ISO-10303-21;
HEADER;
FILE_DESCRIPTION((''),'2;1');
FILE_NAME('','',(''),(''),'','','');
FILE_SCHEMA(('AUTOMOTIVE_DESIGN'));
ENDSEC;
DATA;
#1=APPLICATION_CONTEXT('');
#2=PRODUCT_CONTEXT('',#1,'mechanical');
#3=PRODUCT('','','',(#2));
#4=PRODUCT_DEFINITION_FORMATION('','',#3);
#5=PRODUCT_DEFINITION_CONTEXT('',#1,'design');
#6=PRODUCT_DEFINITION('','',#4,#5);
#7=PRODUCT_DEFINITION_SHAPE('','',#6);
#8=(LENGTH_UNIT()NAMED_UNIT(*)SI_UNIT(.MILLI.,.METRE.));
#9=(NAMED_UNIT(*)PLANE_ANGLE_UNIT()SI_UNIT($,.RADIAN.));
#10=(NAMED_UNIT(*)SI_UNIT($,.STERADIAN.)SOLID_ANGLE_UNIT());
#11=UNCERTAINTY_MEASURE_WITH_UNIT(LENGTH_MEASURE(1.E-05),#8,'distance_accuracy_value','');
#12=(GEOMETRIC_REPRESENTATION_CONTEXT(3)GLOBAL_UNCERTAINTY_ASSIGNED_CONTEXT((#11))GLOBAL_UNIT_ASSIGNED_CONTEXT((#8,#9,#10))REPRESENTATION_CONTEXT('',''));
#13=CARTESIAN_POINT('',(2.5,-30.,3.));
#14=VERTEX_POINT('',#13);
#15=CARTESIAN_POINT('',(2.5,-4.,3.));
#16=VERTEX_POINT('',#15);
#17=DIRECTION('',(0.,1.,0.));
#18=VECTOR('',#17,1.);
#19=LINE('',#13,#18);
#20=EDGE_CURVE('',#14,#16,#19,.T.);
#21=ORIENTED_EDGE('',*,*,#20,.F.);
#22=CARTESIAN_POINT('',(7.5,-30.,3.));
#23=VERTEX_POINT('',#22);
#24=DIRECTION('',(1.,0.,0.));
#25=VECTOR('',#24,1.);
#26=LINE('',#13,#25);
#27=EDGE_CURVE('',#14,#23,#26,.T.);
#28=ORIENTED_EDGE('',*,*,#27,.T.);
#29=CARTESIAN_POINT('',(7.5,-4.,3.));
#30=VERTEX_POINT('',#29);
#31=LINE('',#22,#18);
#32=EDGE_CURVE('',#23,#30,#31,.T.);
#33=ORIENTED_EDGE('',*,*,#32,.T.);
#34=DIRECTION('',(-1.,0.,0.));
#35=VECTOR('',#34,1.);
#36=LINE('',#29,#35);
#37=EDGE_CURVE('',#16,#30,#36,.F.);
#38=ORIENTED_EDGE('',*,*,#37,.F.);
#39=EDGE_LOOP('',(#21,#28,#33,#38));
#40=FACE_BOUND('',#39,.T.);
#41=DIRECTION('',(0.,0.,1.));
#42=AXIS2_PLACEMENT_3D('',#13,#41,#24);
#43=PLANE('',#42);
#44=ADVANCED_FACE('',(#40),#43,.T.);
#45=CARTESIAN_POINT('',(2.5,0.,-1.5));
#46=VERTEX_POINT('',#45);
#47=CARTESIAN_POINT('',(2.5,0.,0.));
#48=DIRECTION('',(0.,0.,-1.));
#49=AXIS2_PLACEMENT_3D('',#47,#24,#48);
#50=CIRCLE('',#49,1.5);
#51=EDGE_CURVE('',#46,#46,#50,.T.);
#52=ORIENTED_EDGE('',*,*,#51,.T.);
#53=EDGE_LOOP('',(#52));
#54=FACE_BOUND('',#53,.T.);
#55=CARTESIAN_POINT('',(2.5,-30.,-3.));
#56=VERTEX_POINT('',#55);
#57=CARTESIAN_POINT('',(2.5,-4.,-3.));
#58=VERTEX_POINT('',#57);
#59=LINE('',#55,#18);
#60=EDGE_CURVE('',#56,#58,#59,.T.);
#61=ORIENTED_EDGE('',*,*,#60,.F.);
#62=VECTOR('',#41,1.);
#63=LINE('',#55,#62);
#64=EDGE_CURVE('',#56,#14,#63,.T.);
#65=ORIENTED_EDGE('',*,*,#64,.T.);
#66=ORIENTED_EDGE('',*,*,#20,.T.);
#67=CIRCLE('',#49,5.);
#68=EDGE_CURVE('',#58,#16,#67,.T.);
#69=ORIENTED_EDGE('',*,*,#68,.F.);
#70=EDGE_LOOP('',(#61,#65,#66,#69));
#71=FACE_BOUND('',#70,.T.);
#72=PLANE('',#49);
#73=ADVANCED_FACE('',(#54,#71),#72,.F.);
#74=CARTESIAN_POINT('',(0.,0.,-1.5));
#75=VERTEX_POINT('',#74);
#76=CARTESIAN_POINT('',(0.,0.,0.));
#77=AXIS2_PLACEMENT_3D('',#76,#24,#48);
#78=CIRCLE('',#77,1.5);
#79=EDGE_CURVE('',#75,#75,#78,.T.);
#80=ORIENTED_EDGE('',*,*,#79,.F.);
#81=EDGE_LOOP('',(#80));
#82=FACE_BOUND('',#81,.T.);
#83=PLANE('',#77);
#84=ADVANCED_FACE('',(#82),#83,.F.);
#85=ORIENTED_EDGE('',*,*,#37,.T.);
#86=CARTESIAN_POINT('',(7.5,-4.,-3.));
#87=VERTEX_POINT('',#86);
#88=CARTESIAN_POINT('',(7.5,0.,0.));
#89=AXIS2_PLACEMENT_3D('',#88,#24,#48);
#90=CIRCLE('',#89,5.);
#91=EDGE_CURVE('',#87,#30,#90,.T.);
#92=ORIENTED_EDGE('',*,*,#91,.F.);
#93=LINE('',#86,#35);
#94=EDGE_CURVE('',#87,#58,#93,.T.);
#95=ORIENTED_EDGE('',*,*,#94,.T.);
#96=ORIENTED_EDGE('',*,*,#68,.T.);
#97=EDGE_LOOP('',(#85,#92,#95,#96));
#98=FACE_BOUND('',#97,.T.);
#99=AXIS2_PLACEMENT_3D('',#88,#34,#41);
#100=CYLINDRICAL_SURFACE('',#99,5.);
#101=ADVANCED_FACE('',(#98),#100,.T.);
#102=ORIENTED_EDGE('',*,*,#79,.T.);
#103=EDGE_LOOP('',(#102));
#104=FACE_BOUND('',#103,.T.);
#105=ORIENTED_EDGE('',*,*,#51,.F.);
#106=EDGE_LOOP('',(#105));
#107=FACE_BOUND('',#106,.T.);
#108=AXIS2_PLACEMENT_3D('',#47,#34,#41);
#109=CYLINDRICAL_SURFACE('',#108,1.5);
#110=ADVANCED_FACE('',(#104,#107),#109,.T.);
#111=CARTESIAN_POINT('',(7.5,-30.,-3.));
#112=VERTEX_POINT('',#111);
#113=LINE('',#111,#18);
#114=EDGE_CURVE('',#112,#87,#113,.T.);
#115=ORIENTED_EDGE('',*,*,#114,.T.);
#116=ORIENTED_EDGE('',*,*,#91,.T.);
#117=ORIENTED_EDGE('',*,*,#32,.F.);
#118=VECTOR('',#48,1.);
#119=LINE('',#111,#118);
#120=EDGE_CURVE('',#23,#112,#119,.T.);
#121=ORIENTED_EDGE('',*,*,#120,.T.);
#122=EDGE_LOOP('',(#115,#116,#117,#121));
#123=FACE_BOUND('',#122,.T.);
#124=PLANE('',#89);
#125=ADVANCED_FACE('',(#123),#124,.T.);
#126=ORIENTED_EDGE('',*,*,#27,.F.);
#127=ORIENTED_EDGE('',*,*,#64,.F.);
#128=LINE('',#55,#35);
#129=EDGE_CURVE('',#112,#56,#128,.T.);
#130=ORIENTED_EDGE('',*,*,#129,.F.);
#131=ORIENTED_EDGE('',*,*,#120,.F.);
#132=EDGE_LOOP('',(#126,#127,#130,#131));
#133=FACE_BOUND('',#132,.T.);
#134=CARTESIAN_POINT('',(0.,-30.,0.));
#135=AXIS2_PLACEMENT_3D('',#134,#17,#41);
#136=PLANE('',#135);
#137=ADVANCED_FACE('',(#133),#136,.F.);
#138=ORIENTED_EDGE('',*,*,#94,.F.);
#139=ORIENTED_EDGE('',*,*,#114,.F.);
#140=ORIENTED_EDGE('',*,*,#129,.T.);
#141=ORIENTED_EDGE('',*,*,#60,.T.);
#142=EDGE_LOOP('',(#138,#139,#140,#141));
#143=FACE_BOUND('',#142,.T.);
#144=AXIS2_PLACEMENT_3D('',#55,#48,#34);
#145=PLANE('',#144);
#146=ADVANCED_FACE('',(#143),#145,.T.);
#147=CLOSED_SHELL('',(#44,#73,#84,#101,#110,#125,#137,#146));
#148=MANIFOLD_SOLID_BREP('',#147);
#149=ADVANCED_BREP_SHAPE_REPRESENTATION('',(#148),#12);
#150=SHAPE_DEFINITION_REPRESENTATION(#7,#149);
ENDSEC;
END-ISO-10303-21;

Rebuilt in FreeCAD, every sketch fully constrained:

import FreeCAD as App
import Part
import Sketcher

V = App.Vector
Q = App.Units.Quantity

doc = App.newDocument("Part")
body = doc.addObject("PartDesign::Body", "Body")

# Sketch on YZ plane
sketch1 = body.newObject("Sketcher::SketchObject", "Sketch")
sketch1.AttachmentSupport = (doc.getObject("YZ_Plane"), [""])
sketch1.MapMode = "FlatFace"
sketch1.addGeometry(Part.Circle(V(0, 0, 0), V(0, 0, 1), 1.5), False)
sketch1.addConstraint(Sketcher.Constraint("Coincident", 0, 3, -1, 1))
sketch1.addConstraint(Sketcher.Constraint("Diameter", 0, Q("3 mm")))
pad1 = body.newObject("PartDesign::Pad", "Pad")
pad1.Profile = sketch1
pad1.Length = 2.5

# Sketch on YZ plane
sketch2 = body.newObject("Sketcher::SketchObject", "Sketch001")
sketch2.AttachmentSupport = (doc.getObject("YZ_Plane"), [""])
sketch2.MapMode = "FlatFace"
sketch2.AttachmentOffset = App.Placement(V(0, 0, 2.5), App.Rotation())
sketch2.addGeometry(Part.Circle(V(0, 0, 0), V(0, 0, 1), 5), False)
sketch2.addConstraint(Sketcher.Constraint("Coincident", 0, 3, -1, 1))
sketch2.addConstraint(Sketcher.Constraint("Diameter", 0, Q("10 mm")))
pad2 = body.newObject("PartDesign::Pad", "Pad001")
pad2.Profile = sketch2
pad2.Length = 5

# Sketch on XZ plane
sketch3 = body.newObject("Sketcher::SketchObject", "Sketch002")
sketch3.AttachmentSupport = (doc.getObject("XZ_Plane"), [""])
sketch3.MapMode = "FlatFace"
sketch3.addGeometry(Part.LineSegment(V(2, -3, 0), V(2, 3, 0)), False)
sketch3.addGeometry(Part.LineSegment(V(2, 3, 0), V(8, 3, 0)), False)
sketch3.addGeometry(Part.LineSegment(V(8, 3, 0), V(8, -3, 0)), False)
sketch3.addGeometry(Part.LineSegment(V(8, -3, 0), V(2, -3, 0)), False)
sketch3.addConstraint(Sketcher.Constraint("Coincident", 0, 2, 1, 1))
sketch3.addConstraint(Sketcher.Constraint("Coincident", 1, 2, 2, 1))
sketch3.addConstraint(Sketcher.Constraint("Coincident", 2, 2, 3, 1))
sketch3.addConstraint(Sketcher.Constraint("Coincident", 3, 2, 0, 1))
sketch3.addConstraint(Sketcher.Constraint("Vertical", 0))
sketch3.addConstraint(Sketcher.Constraint("Horizontal", 1))
sketch3.addConstraint(Sketcher.Constraint("Vertical", 2))
sketch3.addConstraint(Sketcher.Constraint("Horizontal", 3))
sketch3.addConstraint(Sketcher.Constraint("DistanceX", 1, 1, 1, 2, Q("5 mm")))
sketch3.addConstraint(Sketcher.Constraint("DistanceY", 0, 1, 0, 2, Q("6 mm")))
sketch3.addConstraint(Sketcher.Constraint("DistanceY", -1, 1, 0, 2, Q("3 mm")))
sketch3.addConstraint(Sketcher.Constraint("DistanceX", -1, 1, 0, 2, Q("2.5 mm")))
pad3 = body.newObject("PartDesign::Pad", "Pad002")
pad3.Profile = sketch3
pad3.Length = 30

doc.recompute()
